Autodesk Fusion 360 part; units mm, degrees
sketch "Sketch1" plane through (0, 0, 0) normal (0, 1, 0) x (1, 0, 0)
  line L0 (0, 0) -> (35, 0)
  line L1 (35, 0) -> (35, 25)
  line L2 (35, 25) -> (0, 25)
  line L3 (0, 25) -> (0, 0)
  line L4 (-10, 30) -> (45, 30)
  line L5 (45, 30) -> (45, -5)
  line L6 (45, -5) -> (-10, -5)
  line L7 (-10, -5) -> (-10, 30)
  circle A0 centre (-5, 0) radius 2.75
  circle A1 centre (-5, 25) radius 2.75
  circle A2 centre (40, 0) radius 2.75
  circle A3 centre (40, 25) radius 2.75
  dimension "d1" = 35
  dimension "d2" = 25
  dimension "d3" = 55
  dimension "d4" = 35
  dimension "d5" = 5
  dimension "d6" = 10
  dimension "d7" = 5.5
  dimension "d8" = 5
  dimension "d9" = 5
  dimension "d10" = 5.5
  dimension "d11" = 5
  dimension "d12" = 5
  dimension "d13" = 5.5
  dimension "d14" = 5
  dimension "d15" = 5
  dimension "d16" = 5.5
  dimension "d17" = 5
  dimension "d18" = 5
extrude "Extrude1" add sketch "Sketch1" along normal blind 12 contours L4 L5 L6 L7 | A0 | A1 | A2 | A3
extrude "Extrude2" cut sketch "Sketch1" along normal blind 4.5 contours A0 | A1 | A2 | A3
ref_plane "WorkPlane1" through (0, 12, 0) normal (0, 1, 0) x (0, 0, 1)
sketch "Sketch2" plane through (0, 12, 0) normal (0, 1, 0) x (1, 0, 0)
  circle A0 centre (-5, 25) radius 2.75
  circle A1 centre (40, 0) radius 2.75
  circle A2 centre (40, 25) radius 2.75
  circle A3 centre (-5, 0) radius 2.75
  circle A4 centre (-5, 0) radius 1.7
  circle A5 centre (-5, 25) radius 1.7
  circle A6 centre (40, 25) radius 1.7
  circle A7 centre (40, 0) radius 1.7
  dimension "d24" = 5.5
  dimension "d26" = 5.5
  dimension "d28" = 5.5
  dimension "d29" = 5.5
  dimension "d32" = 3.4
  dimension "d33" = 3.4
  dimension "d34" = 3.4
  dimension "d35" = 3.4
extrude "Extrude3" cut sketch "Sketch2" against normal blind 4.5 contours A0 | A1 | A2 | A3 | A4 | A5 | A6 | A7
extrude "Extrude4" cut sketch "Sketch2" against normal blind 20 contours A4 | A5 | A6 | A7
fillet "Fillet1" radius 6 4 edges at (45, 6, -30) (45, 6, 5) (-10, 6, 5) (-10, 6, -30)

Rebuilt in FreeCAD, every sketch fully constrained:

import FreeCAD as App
import Part
import Sketcher
Q = App.Units.Quantity


def edges_at(feature, points):
    """Names of the edges that pass closest to the given points."""
    edges = feature.Shape.Edges
    near = lambda p: min(range(len(edges)), key=lambda i: edges[i].distToShape(Part.Vertex(*p))[0])
    return sorted({f"Edge{near(p) + 1}" for p in points})


def add_polygon(sketch, points):
    """Adds a closed chain of lines whose ends are joined by coincident constraints."""
    first, n = sketch.GeometryCount, len(points)
    for a, b in zip(points, points[1:] + points[:1]):
        sketch.addGeometry(Part.LineSegment(App.Vector(*a, 0), App.Vector(*b, 0)), False)
    for i in range(n):
        sketch.addConstraint(Sketcher.Constraint("Coincident", first + i, 2, first + (i + 1) % n, 1))

doc = App.newDocument("Part")
body = doc.addObject("PartDesign::Body", "Body")

# Sketch on XZ plane
sketch1 = body.newObject("Sketcher::SketchObject", "Sketch")
sketch1.AttachmentSupport = (doc.getObject("XZ_Plane"), [""])
sketch1.MapMode = "FlatFace"
add_polygon(sketch1, [(45, -30), (-10, -30), (-10, 5), (45, 5)])  # lines 0-3
add_polygon(sketch1, [(35, 0), (0, 0), (0, -25), (35, -25)])  # lines 4-7
sketch1.addConstraint([
    Sketcher.Constraint("Horizontal", 0),
    Sketcher.Constraint("Vertical", 1),
    Sketcher.Constraint("Horizontal", 2),
    Sketcher.Constraint("Vertical", 3),
    Sketcher.Constraint("Horizontal", 4),
    Sketcher.Constraint("Vertical", 5),
    Sketcher.Constraint("Horizontal", 6),
    Sketcher.Constraint("Vertical", 7),
    Sketcher.Constraint("Coincident", 4, 2, -1, 1),
    Sketcher.Constraint("Equal", 6, 1),
    Sketcher.Constraint("DistanceX", 0, 2, 0, 1, Q("55 mm")),
    Sketcher.Constraint("DistanceX", 4, 2, 4, 1, Q("35 mm")),
    Sketcher.Constraint("DistanceY", 5, 2, 5, 1, Q("25 mm")),
    Sketcher.Constraint("DistanceX", 0, 2, -1, 1, Q("10 mm")),
    Sketcher.Constraint("DistanceY", -1, 1, 1, 2, Q("5 mm")),
])
pad1 = body.newObject("PartDesign::Pad", "Pad")
pad1.Profile = sketch1
pad1.Length = 12
pad1.Reversed = True

# Sketch on XZ plane
sketch2 = body.newObject("Sketcher::SketchObject", "Sketch001")
sketch2.AttachmentSupport = (doc.getObject("XZ_Plane"), [""])
sketch2.MapMode = "FlatFace"
sketch2.addGeometry([
    Part.Circle(App.Vector(-5, 0, 0), App.Vector(0, 0, 1), 2.8),
    Part.Circle(App.Vector(-5, -25, 0), App.Vector(0, 0, 1), 2.8),
    Part.Circle(App.Vector(40, 0, 0), App.Vector(0, 0, 1), 2.8),
    Part.Circle(App.Vector(40, -25, 0), App.Vector(0, 0, 1), 2.8),
], False)
sketch2.addConstraint([
    Sketcher.Constraint("Equal", 0, 1),
    Sketcher.Constraint("Equal", 1, 2),
    Sketcher.Constraint("Equal", 2, 3),
    Sketcher.Constraint("PointOnObject", 0, 3, -1),
    Sketcher.Constraint("PointOnObject", 2, 3, -1),
    Sketcher.Constraint("Horizontal", 1, 3, 3, 3),
    Sketcher.Constraint("Vertical", 0, 3, 1, 3),
    Sketcher.Constraint("Vertical", 2, 3, 3, 3),
    Sketcher.Constraint("Diameter", 0, Q("5.5 mm")),
    Sketcher.Constraint("DistanceX", 0, 3, -1, 1, Q("5 mm")),
    Sketcher.Constraint("DistanceY", 1, 3, -1, 1, Q("25 mm")),
    Sketcher.Constraint("DistanceX", -1, 1, 2, 3, Q("40 mm")),
])
pocket1 = body.newObject("PartDesign::Pocket", "Pocket")
pocket1.Profile = sketch2
pocket1.Length = 4.5

# Sketch on XZ plane
sketch3 = body.newObject("Sketcher::SketchObject", "Sketch002")
sketch3.AttachmentSupport = (doc.getObject("XZ_Plane"), [""])
sketch3.MapMode = "FlatFace"
sketch3.AttachmentOffset = App.Placement(App.Vector(0, 0, -12), App.Rotation())
sketch3.addGeometry([
    Part.Circle(App.Vector(-5, -25, 0), App.Vector(0, 0, 1), 2.8),
    Part.Circle(App.Vector(40, 0, 0), App.Vector(0, 0, 1), 2.8),
    Part.Circle(App.Vector(40, -25, 0), App.Vector(0, 0, 1), 2.8),
    Part.Circle(App.Vector(-5, 0, 0), App.Vector(0, 0, 1), 2.8),
], False)
sketch3.addConstraint([
    Sketcher.Constraint("Equal", 0, 1),
    Sketcher.Constraint("Equal", 1, 2),
    Sketcher.Constraint("Equal", 2, 3),
    Sketcher.Constraint("PointOnObject", 1, 3, -1),
    Sketcher.Constraint("PointOnObject", 3, 3, -1),
    Sketcher.Constraint("Horizontal", 0, 3, 2, 3),
    Sketcher.Constraint("Vertical", 1, 3, 2, 3),
    Sketcher.Constraint("Vertical", 0, 3, 3, 3),
    Sketcher.Constraint("Diameter", 0, Q("5.5 mm")),
    Sketcher.Constraint("DistanceX", 0, 3, -1, 1, Q("5 mm")),
    Sketcher.Constraint("DistanceY", 0, 3, -1, 1, Q("25 mm")),
    Sketcher.Constraint("DistanceX", -1, 1, 1, 3, Q("40 mm")),
])
pocket2 = body.newObject("PartDesign::Pocket", "Pocket001")
pocket2.Profile = sketch3
pocket2.Length = 4.5
pocket2.Reversed = True

# Sketch on XZ plane
sketch4 = body.newObject("Sketcher::SketchObject", "Sketch003")
sketch4.AttachmentSupport = (doc.getObject("XZ_Plane"), [""])
sketch4.MapMode = "FlatFace"
sketch4.AttachmentOffset = App.Placement(App.Vector(0, 0, -12), App.Rotation())
sketch4.addGeometry([
    Part.Circle(App.Vector(-5, 0, 0), App.Vector(0, 0, 1), 1.7),
    Part.Circle(App.Vector(-5, -25, 0), App.Vector(0, 0, 1), 1.7),
    Part.Circle(App.Vector(40, -25, 0), App.Vector(0, 0, 1), 1.7),
    Part.Circle(App.Vector(40, 0, 0), App.Vector(0, 0, 1), 1.7),
], False)
sketch4.addConstraint([
    Sketcher.Constraint("Equal", 0, 1),
    Sketcher.Constraint("Equal", 1, 2),
    Sketcher.Constraint("Equal", 2, 3),
    Sketcher.Constraint("PointOnObject", 0, 3, -1),
    Sketcher.Constraint("PointOnObject", 3, 3, -1),
    Sketcher.Constraint("Horizontal", 1, 3, 2, 3),
    Sketcher.Constraint("Vertical", 0, 3, 1, 3),
    Sketcher.Constraint("Vertical", 2, 3, 3, 3),
    Sketcher.Constraint("Diameter", 0, Q("3.4 mm")),
    Sketcher.Constraint("DistanceX", 0, 3, -1, 1, Q("5 mm")),
    Sketcher.Constraint("DistanceY", 1, 3, -1, 1, Q("25 mm")),
    Sketcher.Constraint("DistanceX", -1, 1, 2, 3, Q("40 mm")),
])
pocket3 = body.newObject("PartDesign::Pocket", "Pocket002")
pocket3.Profile = sketch4
pocket3.Length = 20
pocket3.Reversed = True
doc.recompute()

fillet = body.newObject("PartDesign::Fillet", "Fillet")
fillet.Base = (pocket3, edges_at(pocket3, [
    (45, 6, -30),
    (45, 6, 5),
    (-10, 6, 5),
    (-10, 6, -30),
]))
fillet.Radius = 6

doc.recompute()
